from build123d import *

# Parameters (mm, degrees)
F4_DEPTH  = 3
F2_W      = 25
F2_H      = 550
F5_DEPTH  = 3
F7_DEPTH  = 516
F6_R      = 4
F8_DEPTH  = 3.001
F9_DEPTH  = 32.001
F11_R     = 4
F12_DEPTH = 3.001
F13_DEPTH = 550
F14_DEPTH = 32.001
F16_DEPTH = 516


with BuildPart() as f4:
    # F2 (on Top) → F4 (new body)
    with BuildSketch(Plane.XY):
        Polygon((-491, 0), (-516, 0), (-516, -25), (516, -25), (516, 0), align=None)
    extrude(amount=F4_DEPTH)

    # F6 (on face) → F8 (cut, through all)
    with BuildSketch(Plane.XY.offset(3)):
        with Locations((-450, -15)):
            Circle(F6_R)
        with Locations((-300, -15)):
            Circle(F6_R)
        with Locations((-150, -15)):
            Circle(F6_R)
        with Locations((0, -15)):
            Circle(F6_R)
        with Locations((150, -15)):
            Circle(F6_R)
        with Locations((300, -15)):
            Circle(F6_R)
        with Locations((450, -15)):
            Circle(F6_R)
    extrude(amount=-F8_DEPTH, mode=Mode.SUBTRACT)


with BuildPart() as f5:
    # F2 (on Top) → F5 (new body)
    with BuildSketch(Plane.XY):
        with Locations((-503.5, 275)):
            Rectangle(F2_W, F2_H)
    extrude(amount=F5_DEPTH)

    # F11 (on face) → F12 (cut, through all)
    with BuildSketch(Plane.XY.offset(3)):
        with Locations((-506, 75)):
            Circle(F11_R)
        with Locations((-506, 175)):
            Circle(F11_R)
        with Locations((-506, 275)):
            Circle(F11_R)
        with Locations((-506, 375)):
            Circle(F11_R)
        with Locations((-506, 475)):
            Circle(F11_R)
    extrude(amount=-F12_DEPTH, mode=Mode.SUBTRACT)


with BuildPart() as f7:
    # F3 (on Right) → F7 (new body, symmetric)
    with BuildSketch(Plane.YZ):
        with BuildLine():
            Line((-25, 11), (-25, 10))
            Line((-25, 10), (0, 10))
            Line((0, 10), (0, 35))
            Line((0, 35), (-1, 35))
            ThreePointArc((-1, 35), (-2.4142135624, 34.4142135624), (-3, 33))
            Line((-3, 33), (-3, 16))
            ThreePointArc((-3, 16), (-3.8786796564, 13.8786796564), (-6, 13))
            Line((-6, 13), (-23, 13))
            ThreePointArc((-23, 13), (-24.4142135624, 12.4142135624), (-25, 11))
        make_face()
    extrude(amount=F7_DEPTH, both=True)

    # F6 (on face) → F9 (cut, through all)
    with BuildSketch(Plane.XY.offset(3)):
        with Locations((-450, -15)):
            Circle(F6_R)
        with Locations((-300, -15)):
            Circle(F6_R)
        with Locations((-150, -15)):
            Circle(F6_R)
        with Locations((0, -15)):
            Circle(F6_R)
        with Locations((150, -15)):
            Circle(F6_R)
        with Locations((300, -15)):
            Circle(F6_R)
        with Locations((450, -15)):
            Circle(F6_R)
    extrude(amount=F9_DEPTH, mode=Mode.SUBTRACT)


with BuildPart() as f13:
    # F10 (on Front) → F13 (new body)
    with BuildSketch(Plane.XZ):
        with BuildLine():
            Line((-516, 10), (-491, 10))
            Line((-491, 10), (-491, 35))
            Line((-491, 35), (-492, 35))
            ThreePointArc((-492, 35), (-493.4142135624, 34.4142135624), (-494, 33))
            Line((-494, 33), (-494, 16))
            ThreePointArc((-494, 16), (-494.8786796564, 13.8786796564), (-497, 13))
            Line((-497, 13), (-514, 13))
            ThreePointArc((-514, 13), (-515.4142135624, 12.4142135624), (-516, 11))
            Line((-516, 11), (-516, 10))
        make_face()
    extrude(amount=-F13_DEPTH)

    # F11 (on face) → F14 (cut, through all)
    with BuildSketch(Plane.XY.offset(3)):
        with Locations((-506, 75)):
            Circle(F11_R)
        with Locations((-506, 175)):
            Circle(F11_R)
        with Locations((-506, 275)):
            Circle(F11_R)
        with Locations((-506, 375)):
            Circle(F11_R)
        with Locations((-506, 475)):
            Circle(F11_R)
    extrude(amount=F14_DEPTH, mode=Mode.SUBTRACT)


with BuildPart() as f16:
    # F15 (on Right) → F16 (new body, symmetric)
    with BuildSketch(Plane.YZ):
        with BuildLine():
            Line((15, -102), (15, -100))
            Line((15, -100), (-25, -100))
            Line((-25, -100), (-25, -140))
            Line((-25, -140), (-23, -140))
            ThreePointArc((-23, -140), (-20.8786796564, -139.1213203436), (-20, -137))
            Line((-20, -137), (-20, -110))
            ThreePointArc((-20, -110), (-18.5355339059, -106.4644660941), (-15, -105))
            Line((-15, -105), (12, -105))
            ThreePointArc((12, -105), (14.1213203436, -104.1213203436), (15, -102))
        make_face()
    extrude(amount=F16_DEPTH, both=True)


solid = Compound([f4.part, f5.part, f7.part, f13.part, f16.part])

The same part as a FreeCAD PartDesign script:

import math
import FreeCAD as App
import Part
import Sketcher
from FreeCAD import Vector
Q = App.Units.Quantity

doc = App.newDocument("Part")
body = doc.addObject("PartDesign::Body", "Body")

# Sketch on XY plane
sketch1 = body.newObject("Sketcher::SketchObject", "Sketch")
sketch1.AttachmentSupport = (doc.getObject("XY_Plane"), [""])
sketch1.MapMode = "FlatFace"
sketch1.addGeometry([
    Part.LineSegment(Vector(-516, 0, 0), Vector(-516, -25, 0)),
    Part.LineSegment(Vector(-516, -25, 0), Vector(516, -25, 0)),
    Part.LineSegment(Vector(516, -25, 0), Vector(516, 0, 0)),
    Part.LineSegment(Vector(516, 0, 0), Vector(-516, 0, 0)),
], False)
sketch1.addConstraint([
    Sketcher.Constraint("Coincident", 0, 2, 1, 1),
    Sketcher.Constraint("Coincident", 1, 2, 2, 1),
    Sketcher.Constraint("Coincident", 2, 2, 3, 1),
    Sketcher.Constraint("Coincident", 3, 2, 0, 1),
    Sketcher.Constraint("Vertical", 0),
    Sketcher.Constraint("Horizontal", 1),
    Sketcher.Constraint("Vertical", 2),
    Sketcher.Constraint("Horizontal", 3),
    Sketcher.Constraint("Symmetric", 2, 2, 3, 2, -1, 1),
    Sketcher.Constraint("DistanceX", 1, 1, 1, 2, Q("1032 mm")),
    Sketcher.Constraint("DistanceY", 0, 2, 0, 1, Q("25 mm")),
])
pad1 = body.newObject("PartDesign::Pad", "Pad")
pad1.Profile = sketch1
pad1.Length = 3

# Sketch on XY plane
sketch2 = body.newObject("Sketcher::SketchObject", "Sketch001")
sketch2.AttachmentSupport = (doc.getObject("XY_Plane"), [""])
sketch2.MapMode = "FlatFace"
sketch2.AttachmentOffset = App.Placement(Vector(0, 0, 3), App.Rotation())
sketch2.addGeometry([
    Part.Circle(Vector(-450, -15, 0), Vector(0, 0, 1), 4),  # 0
    Part.Circle(Vector(-300, -15, 0), Vector(0, 0, 1), 4),  # 1
    Part.Circle(Vector(-150, -15, 0), Vector(0, 0, 1), 4),  # 2
    Part.Circle(Vector(0, -15, 0), Vector(0, 0, 1), 4),  # 3
    Part.Circle(Vector(150, -15, 0), Vector(0, 0, 1), 4),  # 4
    Part.Circle(Vector(300, -15, 0), Vector(0, 0, 1), 4),  # 5
    Part.Circle(Vector(450, -15, 0), Vector(0, 0, 1), 4),  # 6
], False)
sketch2.addConstraint([
    Sketcher.Constraint("Equal", 0, 1),
    Sketcher.Constraint("Equal", 1, 2),
    Sketcher.Constraint("Equal", 2, 3),
    Sketcher.Constraint("Equal", 3, 4),
    Sketcher.Constraint("Equal", 4, 5),
    Sketcher.Constraint("Equal", 5, 6),
    Sketcher.Constraint("Symmetric", 2, 3, 4, 3, -2),
    Sketcher.Constraint("Symmetric", 1, 3, 5, 3, -2),
    Sketcher.Constraint("Symmetric", 0, 3, 6, 3, -2),
    Sketcher.Constraint("PointOnObject", 3, 3, -2),
    Sketcher.Constraint("Horizontal", 0, 3, 1, 3),
    Sketcher.Constraint("Horizontal", 1, 3, 2, 3),
    Sketcher.Constraint("Horizontal", 2, 3, 3, 3),
    Sketcher.Constraint("Diameter", 0, Q("8 mm")),
    Sketcher.Constraint("DistanceX", 0, 3, -1, 1, Q("450 mm")),
    Sketcher.Constraint("DistanceY", 0, 3, -1, 1, Q("15 mm")),
    Sketcher.Constraint("DistanceX", 1, 3, -1, 1, Q("300 mm")),
    Sketcher.Constraint("DistanceX", 2, 3, -1, 1, Q("150 mm")),
])
pocket1 = body.newObject("PartDesign::Pocket", "Pocket")
pocket1.Profile = sketch2
pocket1.Type = "ThroughAll"
body2 = doc.addObject("PartDesign::Body", "Body001")

# Sketch on XY plane
sketch3 = body2.newObject("Sketcher::SketchObject", "Sketch002")
sketch3.AttachmentSupport = (doc.getObject("XY_Plane001"), [""])
sketch3.MapMode = "FlatFace"
sketch3.addGeometry([
    Part.LineSegment(Vector(-516, 550, 0), Vector(-516, 0, 0)),
    Part.LineSegment(Vector(-516, 0, 0), Vector(-491, 0, 0)),
    Part.LineSegment(Vector(-491, 0, 0), Vector(-491, 550, 0)),
    Part.LineSegment(Vector(-491, 550, 0), Vector(-516, 550, 0)),
], False)
sketch3.addConstraint([
    Sketcher.Constraint("Coincident", 0, 2, 1, 1),
    Sketcher.Constraint("Coincident", 1, 2, 2, 1),
    Sketcher.Constraint("Coincident", 2, 2, 3, 1),
    Sketcher.Constraint("Coincident", 3, 2, 0, 1),
    Sketcher.Constraint("Vertical", 0),
    Sketcher.Constraint("Horizontal", 1),
    Sketcher.Constraint("Vertical", 2),
    Sketcher.Constraint("Horizontal", 3),
    Sketcher.Constraint("PointOnObject", 0, 2, -1),
    Sketcher.Constraint("DistanceX", 1, 1, 1, 2, Q("25 mm")),
    Sketcher.Constraint("DistanceY", 0, 2, 0, 1, Q("550 mm")),
    Sketcher.Constraint("DistanceX", 0, 2, -1, 1, Q("516 mm")),
])
pad2 = body2.newObject("PartDesign::Pad", "Pad001")
pad2.Profile = sketch3
pad2.Length = 3

# Sketch on XY plane
sketch4 = body2.newObject("Sketcher::SketchObject", "Sketch003")
sketch4.AttachmentSupport = (doc.getObject("XY_Plane001"), [""])
sketch4.MapMode = "FlatFace"
sketch4.AttachmentOffset = App.Placement(Vector(0, 0, 3), App.Rotation())
sketch4.addGeometry([
    Part.Circle(Vector(-506, 75, 0), Vector(0, 0, 1), 4),  # 0
    Part.Circle(Vector(-506, 175, 0), Vector(0, 0, 1), 4),  # 1
    Part.Circle(Vector(-506, 275, 0), Vector(0, 0, 1), 4),  # 2
    Part.Circle(Vector(-506, 375, 0), Vector(0, 0, 1), 4),  # 3
    Part.Circle(Vector(-506, 475, 0), Vector(0, 0, 1), 4),  # 4
], False)
sketch4.addConstraint([
    Sketcher.Constraint("Equal", 0, 1),
    Sketcher.Constraint("Equal", 1, 2),
    Sketcher.Constraint("Equal", 2, 3),
    Sketcher.Constraint("Equal", 3, 4),
    Sketcher.Constraint("Vertical", 0, 3, 1, 3),
    Sketcher.Constraint("Vertical", 1, 3, 2, 3),
    Sketcher.Constraint("Vertical", 2, 3, 3, 3),
    Sketcher.Constraint("Vertical", 3, 3, 4, 3),
    Sketcher.Constraint("Diameter", 0, Q("8 mm")),
    Sketcher.Constraint("DistanceX", 0, 3, -1, 1, Q("506 mm")),
    Sketcher.Constraint("DistanceY", -1, 1, 0, 3, Q("75 mm")),
    Sketcher.Constraint("DistanceY", -1, 1, 1, 3, Q("175 mm")),
    Sketcher.Constraint("DistanceY", -1, 1, 2, 3, Q("275 mm")),
    Sketcher.Constraint("DistanceY", -1, 1, 3, 3, Q("375 mm")),
    Sketcher.Constraint("DistanceY", -1, 1, 4, 3, Q("475 mm")),
])
pocket2 = body2.newObject("PartDesign::Pocket", "Pocket001")
pocket2.Profile = sketch4
pocket2.Type = "ThroughAll"
body3 = doc.addObject("PartDesign::Body", "Body002")

# Sketch on YZ plane
sketch5 = body3.newObject("Sketcher::SketchObject", "Sketch004")
sketch5.AttachmentSupport = (doc.getObject("YZ_Plane002"), [""])
sketch5.MapMode = "FlatFace"
sketch5.addGeometry([
    Part.LineSegment(Vector(-25, 11, 0), Vector(-25, 10, 0)),  # 0
    Part.LineSegment(Vector(-25, 10, 0), Vector(0, 10, 0)),  # 1
    Part.LineSegment(Vector(0, 10, 0), Vector(0, 35, 0)),  # 2
    Part.LineSegment(Vector(0, 35, 0), Vector(-1, 35, 0)),  # 3
    Part.ArcOfCircle(Part.Circle(Vector(-1, 33, 0), Vector(0, 0, 1), 2), math.radians(90), math.radians(180)),  # 4
    Part.LineSegment(Vector(-3, 33, 0), Vector(-3, 16, 0)),  # 5
    Part.ArcOfCircle(Part.Circle(Vector(-6, 16, 0), Vector(0, 0, 1), 3), math.radians(-90), math.radians(0)),  # 6
    Part.LineSegment(Vector(-6, 13, 0), Vector(-23, 13, 0)),  # 7
    Part.ArcOfCircle(Part.Circle(Vector(-23, 11, 0), Vector(0, 0, 1), 2), math.radians(90), math.radians(180)),  # 8
], False)
sketch5.addConstraint([
    Sketcher.Constraint("Coincident", 0, 2, 1, 1),
    Sketcher.Constraint("Coincident", 1, 2, 2, 1),
    Sketcher.Constraint("Coincident", 2, 2, 3, 1),
    Sketcher.Constraint("Tangent", 3, 2, 4, 1),
    Sketcher.Constraint("Tangent", 4, 2, 5, 1),
    Sketcher.Constraint("Tangent", 5, 2, 6, 2),
    Sketcher.Constraint("Tangent", 6, 1, 7, 1),
    Sketcher.Constraint("Tangent", 7, 2, 8, 1),
    Sketcher.Constraint("Tangent", 8, 2, 0, 1),
    Sketcher.Constraint("Vertical", 0),
    Sketcher.Constraint("Horizontal", 1),
    Sketcher.Constraint("Vertical", 2),
    Sketcher.Constraint("Horizontal", 3),
    Sketcher.Constraint("Vertical", 5),
    Sketcher.Constraint("Horizontal", 7),
    Sketcher.Constraint("Equal", 4, 8),
    Sketcher.Constraint("PointOnObject", 1, 2, -2),
    Sketcher.Constraint("Equal", 3, 0),
    Sketcher.Constraint("Equal", 1, 2),
    Sketcher.Constraint("Radius", 4, Q("2 mm")),
    Sketcher.Constraint("Radius", 6, Q("3 mm")),
    Sketcher.Constraint("DistanceX", 1, 1, 1, 2, Q("25 mm")),
    Sketcher.Constraint("DistanceX", 3, 2, 3, 1, Q("1 mm")),
    Sketcher.Constraint("DistanceY", -1, 1, 4, 3, Q("33 mm")),
])
pad3 = body3.newObject("PartDesign::Pad", "Pad002")
pad3.Profile = sketch5
pad3.Length = 1032
pad3.Midplane = True

# Sketch on XY plane
sketch6 = body3.newObject("Sketcher::SketchObject", "Sketch005")
sketch6.AttachmentSupport = (doc.getObject("XY_Plane002"), [""])
sketch6.MapMode = "FlatFace"
sketch6.AttachmentOffset = App.Placement(Vector(0, 0, 3), App.Rotation())
sketch6.addGeometry([
    Part.Circle(Vector(-450, -15, 0), Vector(0, 0, 1), 4),  # 0
    Part.Circle(Vector(-300, -15, 0), Vector(0, 0, 1), 4),  # 1
    Part.Circle(Vector(-150, -15, 0), Vector(0, 0, 1), 4),  # 2
    Part.Circle(Vector(0, -15, 0), Vector(0, 0, 1), 4),  # 3
    Part.Circle(Vector(150, -15, 0), Vector(0, 0, 1), 4),  # 4
    Part.Circle(Vector(300, -15, 0), Vector(0, 0, 1), 4),  # 5
    Part.Circle(Vector(450, -15, 0), Vector(0, 0, 1), 4),  # 6
], False)
sketch6.addConstraint([
    Sketcher.Constraint("Equal", 0, 1),
    Sketcher.Constraint("Equal", 1, 2),
    Sketcher.Constraint("Equal", 2, 3),
    Sketcher.Constraint("Equal", 3, 4),
    Sketcher.Constraint("Equal", 4, 5),
    Sketcher.Constraint("Equal", 5, 6),
    Sketcher.Constraint("Symmetric", 2, 3, 4, 3, -2),
    Sketcher.Constraint("Symmetric", 1, 3, 5, 3, -2),
    Sketcher.Constraint("Symmetric", 0, 3, 6, 3, -2),
    Sketcher.Constraint("PointOnObject", 3, 3, -2),
    Sketcher.Constraint("Horizontal", 0, 3, 1, 3),
    Sketcher.Constraint("Horizontal", 1, 3, 2, 3),
    Sketcher.Constraint("Horizontal", 2, 3, 3, 3),
    Sketcher.Constraint("Diameter", 0, Q("8 mm")),
    Sketcher.Constraint("DistanceX", 0, 3, -1, 1, Q("450 mm")),
    Sketcher.Constraint("DistanceY", 0, 3, -1, 1, Q("15 mm")),
    Sketcher.Constraint("DistanceX", 1, 3, -1, 1, Q("300 mm")),
    Sketcher.Constraint("DistanceX", 2, 3, -1, 1, Q("150 mm")),
])
pocket3 = body3.newObject("PartDesign::Pocket", "Pocket002")
pocket3.Profile = sketch6
pocket3.Type = "ThroughAll"
pocket3.Reversed = True
body4 = doc.addObject("PartDesign::Body", "Body003")

# Sketch on XZ plane
sketch7 = body4.newObject("Sketcher::SketchObject", "Sketch006")
sketch7.AttachmentSupport = (doc.getObject("XZ_Plane003"), [""])
sketch7.MapMode = "FlatFace"
sketch7.addGeometry([
    Part.LineSegment(Vector(-516, 10, 0), Vector(-491, 10, 0)),  # 0
    Part.LineSegment(Vector(-491, 10, 0), Vector(-491, 35, 0)),  # 1
    Part.LineSegment(Vector(-491, 35, 0), Vector(-492, 35, 0)),  # 2
    Part.ArcOfCircle(Part.Circle(Vector(-492, 33, 0), Vector(0, 0, 1), 2), math.radians(90), math.radians(180)),  # 3
    Part.LineSegment(Vector(-494, 33, 0), Vector(-494, 16, 0)),  # 4
    Part.ArcOfCircle(Part.Circle(Vector(-497, 16, 0), Vector(0, 0, 1), 3), math.radians(-90), math.radians(0)),  # 5
    Part.LineSegment(Vector(-497, 13, 0), Vector(-514, 13, 0)),  # 6
    Part.ArcOfCircle(Part.Circle(Vector(-514, 11, 0), Vector(0, 0, 1), 2), math.radians(90), math.radians(180)),  # 7
    Part.LineSegment(Vector(-516, 11, 0), Vector(-516, 10, 0)),  # 8
], False)
sketch7.addConstraint([
    Sketcher.Constraint("Coincident", 0, 2, 1, 1),
    Sketcher.Constraint("Coincident", 1, 2, 2, 1),
    Sketcher.Constraint("Tangent", 2, 2, 3, 1),
    Sketcher.Constraint("Tangent", 3, 2, 4, 1),
    Sketcher.Constraint("Tangent", 4, 2, 5, 2),
    Sketcher.Constraint("Tangent", 5, 1, 6, 1),
    Sketcher.Constraint("Tangent", 6, 2, 7, 1),
    Sketcher.Constraint("Tangent", 7, 2, 8, 1),
    Sketcher.Constraint("Coincident", 8, 2, 0, 1),
    Sketcher.Constraint("Horizontal", 0),
    Sketcher.Constraint("Vertical", 1),
    Sketcher.Constraint("Horizontal", 2),
    Sketcher.Constraint("Vertical", 4),
    Sketcher.Constraint("Horizontal", 6),
    Sketcher.Constraint("Vertical", 8),
    Sketcher.Constraint("Equal", 3, 7),
    Sketcher.Constraint("Equal", 0, 1),
    Sketcher.Constraint("Equal", 6, 4),
    Sketcher.Constraint("Radius", 3, Q("2 mm")),
    Sketcher.Constraint("Radius", 5, Q("3 mm")),
    Sketcher.Constraint("DistanceX", 0, 1, 0, 2, Q("25 mm")),
    Sketcher.Constraint("DistanceX", 2, 2, 2, 1, Q("1 mm")),
    Sketcher.Constraint("DistanceX", 3, 3, -1, 1, Q("492 mm")),
    Sketcher.Constraint("DistanceY", -1, 1, 3, 3, Q("33 mm")),
])
pad4 = body4.newObject("PartDesign::Pad", "Pad003")
pad4.Profile = sketch7
pad4.Length = 550
pad4.Reversed = True

# Sketch on XY plane
sketch8 = body4.newObject("Sketcher::SketchObject", "Sketch007")
sketch8.AttachmentSupport = (doc.getObject("XY_Plane003"), [""])
sketch8.MapMode = "FlatFace"
sketch8.AttachmentOffset = App.Placement(Vector(0, 0, 3), App.Rotation())
sketch8.addGeometry([
    Part.Circle(Vector(-506, 75, 0), Vector(0, 0, 1), 4),  # 0
    Part.Circle(Vector(-506, 175, 0), Vector(0, 0, 1), 4),  # 1
    Part.Circle(Vector(-506, 275, 0), Vector(0, 0, 1), 4),  # 2
    Part.Circle(Vector(-506, 375, 0), Vector(0, 0, 1), 4),  # 3
    Part.Circle(Vector(-506, 475, 0), Vector(0, 0, 1), 4),  # 4
], False)
sketch8.addConstraint([
    Sketcher.Constraint("Equal", 0, 1),
    Sketcher.Constraint("Equal", 1, 2),
    Sketcher.Constraint("Equal", 2, 3),
    Sketcher.Constraint("Equal", 3, 4),
    Sketcher.Constraint("Vertical", 0, 3, 1, 3),
    Sketcher.Constraint("Vertical", 1, 3, 2, 3),
    Sketcher.Constraint("Vertical", 2, 3, 3, 3),
    Sketcher.Constraint("Vertical", 3, 3, 4, 3),
    Sketcher.Constraint("Diameter", 0, Q("8 mm")),
    Sketcher.Constraint("DistanceX", 0, 3, -1, 1, Q("506 mm")),
    Sketcher.Constraint("DistanceY", -1, 1, 0, 3, Q("75 mm")),
    Sketcher.Constraint("DistanceY", -1, 1, 1, 3, Q("175 mm")),
    Sketcher.Constraint("DistanceY", -1, 1, 2, 3, Q("275 mm")),
    Sketcher.Constraint("DistanceY", -1, 1, 3, 3, Q("375 mm")),
    Sketcher.Constraint("DistanceY", -1, 1, 4, 3, Q("475 mm")),
])
pocket4 = body4.newObject("PartDesign::Pocket", "Pocket003")
pocket4.Profile = sketch8
pocket4.Type = "ThroughAll"
pocket4.Reversed = True
body5 = doc.addObject("PartDesign::Body", "Body004")

# Sketch on YZ plane
sketch9 = body5.newObject("Sketcher::SketchObject", "Sketch008")
sketch9.AttachmentSupport = (doc.getObject("YZ_Plane004"), [""])
sketch9.MapMode = "FlatFace"
sketch9.addGeometry([
    Part.LineSegment(Vector(15, -102, 0), Vector(15, -100, 0)),  # 0
    Part.LineSegment(Vector(15, -100, 0), Vector(-25, -100, 0)),  # 1
    Part.LineSegment(Vector(-25, -100, 0), Vector(-25, -140, 0)),  # 2
    Part.LineSegment(Vector(-25, -140, 0), Vector(-23, -140, 0)),  # 3
    Part.ArcOfCircle(Part.Circle(Vector(-23, -137, 0), Vector(0, 0, 1), 3), math.radians(-90), math.radians(0)),  # 4
    Part.LineSegment(Vector(-20, -137, 0), Vector(-20, -110, 0)),  # 5
    Part.ArcOfCircle(Part.Circle(Vector(-15, -110, 0), Vector(0, 0, 1), 5), math.radians(90), math.radians(180)),  # 6
    Part.LineSegment(Vector(-15, -105, 0), Vector(12, -105, 0)),  # 7
    Part.ArcOfCircle(Part.Circle(Vector(12, -102, 0), Vector(0, 0, 1), 3), math.radians(-90), math.radians(0)),  # 8
], False)
sketch9.addConstraint([
    Sketcher.Constraint("Coincident", 0, 2, 1, 1),
    Sketcher.Constraint("Coincident", 1, 2, 2, 1),
    Sketcher.Constraint("Coincident", 2, 2, 3, 1),
    Sketcher.Constraint("Tangent", 3, 2, 4, 1),
    Sketcher.Constraint("Tangent", 4, 2, 5, 1),
    Sketcher.Constraint("Tangent", 5, 2, 6, 2),
    Sketcher.Constraint("Tangent", 6, 1, 7, 1),
    Sketcher.Constraint("Tangent", 7, 2, 8, 1),
    Sketcher.Constraint("Tangent", 8, 2, 0, 1),
    Sketcher.Constraint("Vertical", 0),
    Sketcher.Constraint("Horizontal", 1),
    Sketcher.Constraint("Vertical", 2),
    Sketcher.Constraint("Horizontal", 3),
    Sketcher.Constraint("Vertical", 5),
    Sketcher.Constraint("Horizontal", 7),
    Sketcher.Constraint("Equal", 4, 8),
    Sketcher.Constraint("Equal", 3, 0),
    Sketcher.Constraint("Equal", 1, 2),
    Sketcher.Constraint("Radius", 4, Q("3 mm")),
    Sketcher.Constraint("Radius", 6, Q("5 mm")),
    Sketcher.Constraint("DistanceX", 1, 2, 1, 1, Q("40 mm")),
    Sketcher.Constraint("DistanceX", 3, 1, 3, 2, Q("2 mm")),
    Sketcher.Constraint("DistanceX", 4, 3, -1, 1, Q("23 mm")),
    Sketcher.Constraint("DistanceY", 4, 3, -1, 1, Q("137 mm")),
])
pad5 = body5.newObject("PartDesign::Pad", "Pad004")
pad5.Profile = sketch9
pad5.Length = 1032
pad5.Midplane = True

doc.recompute()
